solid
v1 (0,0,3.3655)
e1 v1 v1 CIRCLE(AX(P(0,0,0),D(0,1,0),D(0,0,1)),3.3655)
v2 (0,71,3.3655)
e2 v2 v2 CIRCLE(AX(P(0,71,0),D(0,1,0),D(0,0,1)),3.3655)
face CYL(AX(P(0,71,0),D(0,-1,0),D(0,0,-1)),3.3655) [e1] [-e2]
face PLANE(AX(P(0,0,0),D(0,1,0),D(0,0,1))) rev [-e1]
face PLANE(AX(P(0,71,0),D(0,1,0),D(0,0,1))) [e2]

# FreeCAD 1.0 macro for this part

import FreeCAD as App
import Part
import Sketcher
Q = App.Units.Quantity

doc = App.newDocument("Part")
body = doc.addObject("PartDesign::Body", "Body")

# Sketch on XZ plane
sketch1 = body.newObject("Sketcher::SketchObject", "Sketch")
sketch1.AttachmentSupport = (doc.getObject("XZ_Plane"), [""])
sketch1.MapMode = "FlatFace"
sketch1.addGeometry(Part.Circle(App.Vector(0, 0, 0), App.Vector(0, 0, 1), 3.4), False)
sketch1.addConstraint([
    Sketcher.Constraint("Coincident", 0, 3, -1, 1),
    Sketcher.Constraint("Diameter", 0, Q("6.731 mm")),
])
pad1 = body.newObject("PartDesign::Pad", "Pad")
pad1.Profile = sketch1
pad1.Length = 71
pad1.Reversed = True

doc.recompute()
